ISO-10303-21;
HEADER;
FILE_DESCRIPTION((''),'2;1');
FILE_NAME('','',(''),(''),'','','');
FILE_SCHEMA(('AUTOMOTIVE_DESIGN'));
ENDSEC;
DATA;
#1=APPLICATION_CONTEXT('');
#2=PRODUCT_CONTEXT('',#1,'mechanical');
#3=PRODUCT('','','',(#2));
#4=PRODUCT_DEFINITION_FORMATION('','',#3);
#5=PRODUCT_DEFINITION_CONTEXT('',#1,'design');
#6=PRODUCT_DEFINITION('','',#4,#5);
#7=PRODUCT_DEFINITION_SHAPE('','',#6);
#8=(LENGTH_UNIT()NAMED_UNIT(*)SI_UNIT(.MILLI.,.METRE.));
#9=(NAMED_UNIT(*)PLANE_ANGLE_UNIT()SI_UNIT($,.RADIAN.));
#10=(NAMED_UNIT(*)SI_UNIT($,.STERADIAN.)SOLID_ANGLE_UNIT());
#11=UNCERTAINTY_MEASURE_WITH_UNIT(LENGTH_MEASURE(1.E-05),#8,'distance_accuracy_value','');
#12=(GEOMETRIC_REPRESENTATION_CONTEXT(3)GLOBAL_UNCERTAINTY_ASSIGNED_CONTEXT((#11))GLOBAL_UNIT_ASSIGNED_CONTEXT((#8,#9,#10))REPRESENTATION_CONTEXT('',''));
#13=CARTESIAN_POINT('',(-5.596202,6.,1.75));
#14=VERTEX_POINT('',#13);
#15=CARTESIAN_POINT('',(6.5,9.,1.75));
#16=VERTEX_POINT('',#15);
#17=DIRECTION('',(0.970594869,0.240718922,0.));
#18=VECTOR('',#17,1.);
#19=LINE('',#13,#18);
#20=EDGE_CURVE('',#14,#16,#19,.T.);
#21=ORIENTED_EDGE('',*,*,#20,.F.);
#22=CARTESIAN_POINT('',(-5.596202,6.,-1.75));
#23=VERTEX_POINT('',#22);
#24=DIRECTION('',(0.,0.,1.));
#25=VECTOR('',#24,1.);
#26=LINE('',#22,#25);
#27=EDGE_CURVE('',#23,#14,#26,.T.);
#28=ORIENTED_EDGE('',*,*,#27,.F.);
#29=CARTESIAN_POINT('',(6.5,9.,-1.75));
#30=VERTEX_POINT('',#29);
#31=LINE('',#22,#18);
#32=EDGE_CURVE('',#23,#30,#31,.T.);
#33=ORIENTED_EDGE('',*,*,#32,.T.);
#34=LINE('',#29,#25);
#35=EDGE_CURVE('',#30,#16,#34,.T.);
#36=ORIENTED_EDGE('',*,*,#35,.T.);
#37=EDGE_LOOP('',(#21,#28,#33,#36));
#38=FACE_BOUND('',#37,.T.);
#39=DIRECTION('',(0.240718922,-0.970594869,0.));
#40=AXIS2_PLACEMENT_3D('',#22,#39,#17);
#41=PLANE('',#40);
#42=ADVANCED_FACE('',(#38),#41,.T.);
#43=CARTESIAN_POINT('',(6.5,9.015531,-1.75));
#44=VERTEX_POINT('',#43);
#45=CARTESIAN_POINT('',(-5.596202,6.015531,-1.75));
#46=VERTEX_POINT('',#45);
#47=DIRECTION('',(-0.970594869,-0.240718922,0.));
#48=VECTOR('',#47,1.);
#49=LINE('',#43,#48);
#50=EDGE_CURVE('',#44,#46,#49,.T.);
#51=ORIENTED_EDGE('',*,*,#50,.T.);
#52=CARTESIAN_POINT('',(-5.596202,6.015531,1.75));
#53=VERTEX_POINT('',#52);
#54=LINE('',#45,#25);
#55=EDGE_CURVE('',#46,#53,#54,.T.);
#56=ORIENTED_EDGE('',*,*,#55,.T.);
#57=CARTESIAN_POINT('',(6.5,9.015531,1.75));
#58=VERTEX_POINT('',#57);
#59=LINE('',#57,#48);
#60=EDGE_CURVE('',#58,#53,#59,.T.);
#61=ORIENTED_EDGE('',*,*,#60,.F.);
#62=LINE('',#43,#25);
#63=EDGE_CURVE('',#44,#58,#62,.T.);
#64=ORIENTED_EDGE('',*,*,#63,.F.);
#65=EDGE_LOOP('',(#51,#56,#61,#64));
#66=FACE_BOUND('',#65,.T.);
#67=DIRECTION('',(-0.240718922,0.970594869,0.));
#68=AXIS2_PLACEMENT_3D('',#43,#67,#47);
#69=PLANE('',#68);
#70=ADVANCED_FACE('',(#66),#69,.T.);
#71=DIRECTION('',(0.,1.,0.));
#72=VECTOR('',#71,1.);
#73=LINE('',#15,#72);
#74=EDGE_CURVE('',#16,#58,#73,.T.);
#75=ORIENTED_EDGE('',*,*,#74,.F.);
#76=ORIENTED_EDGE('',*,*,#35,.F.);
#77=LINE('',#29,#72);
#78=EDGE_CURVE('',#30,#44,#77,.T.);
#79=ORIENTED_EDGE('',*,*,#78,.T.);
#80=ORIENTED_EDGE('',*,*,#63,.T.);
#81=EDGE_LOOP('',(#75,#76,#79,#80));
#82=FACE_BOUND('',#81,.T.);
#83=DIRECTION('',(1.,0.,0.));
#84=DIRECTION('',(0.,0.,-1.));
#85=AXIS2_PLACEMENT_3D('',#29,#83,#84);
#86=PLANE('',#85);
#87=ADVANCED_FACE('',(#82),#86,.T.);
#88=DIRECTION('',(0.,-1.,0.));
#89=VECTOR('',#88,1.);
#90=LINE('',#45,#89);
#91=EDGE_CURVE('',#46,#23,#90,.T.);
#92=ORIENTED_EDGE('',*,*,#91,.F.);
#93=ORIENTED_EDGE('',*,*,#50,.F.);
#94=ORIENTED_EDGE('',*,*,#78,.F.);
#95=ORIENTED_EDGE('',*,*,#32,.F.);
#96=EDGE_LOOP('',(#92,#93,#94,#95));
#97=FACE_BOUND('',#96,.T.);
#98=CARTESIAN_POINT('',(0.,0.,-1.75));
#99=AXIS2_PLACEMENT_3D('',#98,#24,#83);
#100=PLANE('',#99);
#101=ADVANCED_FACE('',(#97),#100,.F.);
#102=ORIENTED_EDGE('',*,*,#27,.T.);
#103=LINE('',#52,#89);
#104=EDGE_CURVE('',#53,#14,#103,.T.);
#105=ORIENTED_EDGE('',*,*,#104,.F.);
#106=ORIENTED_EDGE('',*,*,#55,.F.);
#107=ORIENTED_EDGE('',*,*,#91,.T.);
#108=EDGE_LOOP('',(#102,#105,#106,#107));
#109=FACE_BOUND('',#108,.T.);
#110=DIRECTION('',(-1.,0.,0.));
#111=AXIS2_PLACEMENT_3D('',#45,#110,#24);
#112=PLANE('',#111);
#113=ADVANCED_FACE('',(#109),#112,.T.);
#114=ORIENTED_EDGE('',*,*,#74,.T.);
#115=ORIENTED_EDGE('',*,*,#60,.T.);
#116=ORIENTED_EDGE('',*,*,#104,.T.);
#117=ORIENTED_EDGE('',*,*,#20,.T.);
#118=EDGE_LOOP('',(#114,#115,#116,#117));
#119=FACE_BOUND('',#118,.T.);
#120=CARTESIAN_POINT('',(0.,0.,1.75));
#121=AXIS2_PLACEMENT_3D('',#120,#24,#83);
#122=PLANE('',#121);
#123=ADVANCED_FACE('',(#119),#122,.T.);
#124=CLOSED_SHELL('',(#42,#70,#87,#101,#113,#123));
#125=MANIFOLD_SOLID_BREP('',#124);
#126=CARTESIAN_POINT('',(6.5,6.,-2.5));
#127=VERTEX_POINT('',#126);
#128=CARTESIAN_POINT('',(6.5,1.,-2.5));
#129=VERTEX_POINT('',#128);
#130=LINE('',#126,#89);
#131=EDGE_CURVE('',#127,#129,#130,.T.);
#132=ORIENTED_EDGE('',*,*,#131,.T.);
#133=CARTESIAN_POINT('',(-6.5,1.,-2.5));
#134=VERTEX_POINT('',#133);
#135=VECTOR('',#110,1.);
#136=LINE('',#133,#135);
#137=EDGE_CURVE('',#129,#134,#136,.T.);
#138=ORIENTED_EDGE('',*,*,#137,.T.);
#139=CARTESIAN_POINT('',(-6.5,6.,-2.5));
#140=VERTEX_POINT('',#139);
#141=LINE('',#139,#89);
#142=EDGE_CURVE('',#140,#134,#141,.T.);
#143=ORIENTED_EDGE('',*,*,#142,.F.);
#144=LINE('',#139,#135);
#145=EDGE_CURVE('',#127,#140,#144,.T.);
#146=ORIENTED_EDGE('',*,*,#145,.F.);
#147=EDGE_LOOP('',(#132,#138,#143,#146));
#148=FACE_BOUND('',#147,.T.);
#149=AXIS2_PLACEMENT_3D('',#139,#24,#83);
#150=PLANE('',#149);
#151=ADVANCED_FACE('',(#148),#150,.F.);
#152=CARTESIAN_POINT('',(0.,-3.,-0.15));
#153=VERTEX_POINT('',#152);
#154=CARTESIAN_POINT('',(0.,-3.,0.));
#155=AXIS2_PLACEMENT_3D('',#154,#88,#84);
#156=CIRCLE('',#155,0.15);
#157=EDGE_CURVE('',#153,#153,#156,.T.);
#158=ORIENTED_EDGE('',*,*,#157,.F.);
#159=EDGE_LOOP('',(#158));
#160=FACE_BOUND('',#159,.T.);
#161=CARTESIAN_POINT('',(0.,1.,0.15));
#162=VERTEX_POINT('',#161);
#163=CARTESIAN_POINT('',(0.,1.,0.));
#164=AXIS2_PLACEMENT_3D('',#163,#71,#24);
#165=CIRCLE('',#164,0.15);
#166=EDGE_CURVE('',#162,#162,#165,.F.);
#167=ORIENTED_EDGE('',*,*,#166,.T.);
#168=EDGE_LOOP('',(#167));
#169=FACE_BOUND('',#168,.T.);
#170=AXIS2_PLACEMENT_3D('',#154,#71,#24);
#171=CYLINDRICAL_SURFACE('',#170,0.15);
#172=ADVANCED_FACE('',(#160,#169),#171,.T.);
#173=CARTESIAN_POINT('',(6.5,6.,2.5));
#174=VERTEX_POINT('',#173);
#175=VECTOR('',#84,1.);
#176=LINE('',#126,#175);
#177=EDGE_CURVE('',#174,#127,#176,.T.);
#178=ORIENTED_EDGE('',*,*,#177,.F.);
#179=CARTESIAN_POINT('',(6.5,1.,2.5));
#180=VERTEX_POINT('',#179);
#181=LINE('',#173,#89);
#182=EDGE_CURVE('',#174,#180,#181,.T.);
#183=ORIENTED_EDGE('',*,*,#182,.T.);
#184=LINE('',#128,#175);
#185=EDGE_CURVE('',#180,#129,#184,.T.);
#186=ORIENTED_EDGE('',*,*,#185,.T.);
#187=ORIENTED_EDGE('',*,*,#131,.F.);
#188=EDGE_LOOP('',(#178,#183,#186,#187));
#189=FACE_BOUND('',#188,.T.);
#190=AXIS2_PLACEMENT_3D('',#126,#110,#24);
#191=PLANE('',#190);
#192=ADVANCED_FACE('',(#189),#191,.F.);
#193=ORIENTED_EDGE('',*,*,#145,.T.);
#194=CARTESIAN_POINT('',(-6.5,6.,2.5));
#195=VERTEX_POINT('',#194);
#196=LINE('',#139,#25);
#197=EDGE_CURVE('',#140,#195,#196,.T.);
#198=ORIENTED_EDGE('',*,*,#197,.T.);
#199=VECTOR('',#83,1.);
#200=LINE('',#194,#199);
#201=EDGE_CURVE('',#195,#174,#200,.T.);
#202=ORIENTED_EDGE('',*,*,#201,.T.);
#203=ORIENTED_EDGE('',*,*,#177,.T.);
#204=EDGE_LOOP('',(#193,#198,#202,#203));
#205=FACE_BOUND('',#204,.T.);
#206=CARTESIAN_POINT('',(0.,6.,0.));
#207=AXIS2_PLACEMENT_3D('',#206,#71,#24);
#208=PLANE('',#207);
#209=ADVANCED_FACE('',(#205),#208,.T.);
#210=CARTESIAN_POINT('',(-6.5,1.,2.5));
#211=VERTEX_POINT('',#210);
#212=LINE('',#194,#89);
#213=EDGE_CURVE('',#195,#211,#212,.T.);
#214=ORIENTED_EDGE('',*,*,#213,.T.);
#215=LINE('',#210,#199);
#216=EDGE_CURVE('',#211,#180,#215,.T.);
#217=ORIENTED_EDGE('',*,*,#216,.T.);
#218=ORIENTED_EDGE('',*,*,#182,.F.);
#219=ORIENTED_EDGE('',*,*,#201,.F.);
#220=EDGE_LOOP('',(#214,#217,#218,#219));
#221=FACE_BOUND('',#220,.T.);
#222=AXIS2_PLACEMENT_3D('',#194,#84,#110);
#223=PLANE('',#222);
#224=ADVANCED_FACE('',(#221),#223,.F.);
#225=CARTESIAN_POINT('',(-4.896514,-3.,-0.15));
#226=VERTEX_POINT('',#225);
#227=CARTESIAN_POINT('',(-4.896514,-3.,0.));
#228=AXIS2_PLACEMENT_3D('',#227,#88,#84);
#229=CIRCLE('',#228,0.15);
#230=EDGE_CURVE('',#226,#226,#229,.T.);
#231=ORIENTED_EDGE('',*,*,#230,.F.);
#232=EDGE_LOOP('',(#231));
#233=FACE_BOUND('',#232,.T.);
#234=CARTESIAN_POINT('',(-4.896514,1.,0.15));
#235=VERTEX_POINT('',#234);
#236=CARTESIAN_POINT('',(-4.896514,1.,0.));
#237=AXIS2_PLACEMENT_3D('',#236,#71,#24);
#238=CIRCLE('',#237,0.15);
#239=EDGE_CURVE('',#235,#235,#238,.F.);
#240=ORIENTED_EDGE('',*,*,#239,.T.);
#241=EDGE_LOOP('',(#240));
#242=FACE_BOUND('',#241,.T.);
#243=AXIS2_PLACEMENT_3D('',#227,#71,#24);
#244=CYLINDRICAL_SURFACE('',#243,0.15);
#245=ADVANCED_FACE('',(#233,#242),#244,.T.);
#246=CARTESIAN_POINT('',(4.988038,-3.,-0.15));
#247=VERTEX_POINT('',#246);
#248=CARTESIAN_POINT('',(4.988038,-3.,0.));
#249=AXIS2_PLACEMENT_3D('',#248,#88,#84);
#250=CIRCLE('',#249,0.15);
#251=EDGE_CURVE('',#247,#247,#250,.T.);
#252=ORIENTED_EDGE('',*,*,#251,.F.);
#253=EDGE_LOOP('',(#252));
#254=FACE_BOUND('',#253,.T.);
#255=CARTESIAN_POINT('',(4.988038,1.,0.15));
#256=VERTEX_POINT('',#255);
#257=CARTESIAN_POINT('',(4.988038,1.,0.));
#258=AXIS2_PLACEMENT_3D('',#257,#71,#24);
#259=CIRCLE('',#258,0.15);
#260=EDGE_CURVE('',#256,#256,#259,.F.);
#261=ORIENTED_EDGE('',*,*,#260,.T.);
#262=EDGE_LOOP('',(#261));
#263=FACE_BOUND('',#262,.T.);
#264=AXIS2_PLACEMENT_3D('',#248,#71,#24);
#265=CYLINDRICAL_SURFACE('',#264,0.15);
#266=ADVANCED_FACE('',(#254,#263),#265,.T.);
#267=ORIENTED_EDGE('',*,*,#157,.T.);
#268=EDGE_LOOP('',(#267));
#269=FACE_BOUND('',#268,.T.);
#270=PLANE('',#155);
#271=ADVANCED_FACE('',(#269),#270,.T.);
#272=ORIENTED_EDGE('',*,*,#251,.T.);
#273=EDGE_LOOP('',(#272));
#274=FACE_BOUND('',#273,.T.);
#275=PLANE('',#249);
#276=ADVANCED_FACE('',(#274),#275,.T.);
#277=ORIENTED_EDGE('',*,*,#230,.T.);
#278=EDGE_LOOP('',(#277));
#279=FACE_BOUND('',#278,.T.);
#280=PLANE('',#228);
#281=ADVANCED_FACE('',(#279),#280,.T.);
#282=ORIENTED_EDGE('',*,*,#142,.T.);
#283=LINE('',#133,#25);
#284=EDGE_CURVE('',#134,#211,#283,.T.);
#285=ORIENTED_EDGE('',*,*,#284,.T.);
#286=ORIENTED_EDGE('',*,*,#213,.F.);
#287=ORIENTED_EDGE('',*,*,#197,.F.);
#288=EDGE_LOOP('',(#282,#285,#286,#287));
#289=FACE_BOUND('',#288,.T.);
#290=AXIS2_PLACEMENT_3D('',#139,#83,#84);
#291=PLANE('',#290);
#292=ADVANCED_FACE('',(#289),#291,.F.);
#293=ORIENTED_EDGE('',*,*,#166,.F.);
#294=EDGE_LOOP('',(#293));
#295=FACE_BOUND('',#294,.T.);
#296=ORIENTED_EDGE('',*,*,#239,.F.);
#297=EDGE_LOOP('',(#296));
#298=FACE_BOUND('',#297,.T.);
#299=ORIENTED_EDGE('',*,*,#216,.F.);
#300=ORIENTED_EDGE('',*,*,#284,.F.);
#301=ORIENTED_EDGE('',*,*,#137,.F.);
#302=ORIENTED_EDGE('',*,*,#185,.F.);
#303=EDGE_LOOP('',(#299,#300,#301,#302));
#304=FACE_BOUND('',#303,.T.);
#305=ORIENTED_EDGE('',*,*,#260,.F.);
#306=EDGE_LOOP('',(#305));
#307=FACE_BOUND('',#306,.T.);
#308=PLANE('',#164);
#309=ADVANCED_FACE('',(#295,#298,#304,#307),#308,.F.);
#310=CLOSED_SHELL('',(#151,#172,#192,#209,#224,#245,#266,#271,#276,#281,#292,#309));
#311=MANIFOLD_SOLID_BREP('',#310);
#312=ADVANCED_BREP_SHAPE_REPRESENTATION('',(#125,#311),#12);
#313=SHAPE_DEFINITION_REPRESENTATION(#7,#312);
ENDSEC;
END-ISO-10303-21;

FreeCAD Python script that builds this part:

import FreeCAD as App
import Part
import Sketcher
Q = App.Units.Quantity


def add_polygon(sketch, points):
    """Adds a closed chain of lines whose ends are joined by coincident constraints."""
    first, n = sketch.GeometryCount, len(points)
    for a, b in zip(points, points[1:] + points[:1]):
        sketch.addGeometry(Part.LineSegment(App.Vector(*a, 0), App.Vector(*b, 0)), False)
    for i in range(n):
        sketch.addConstraint(Sketcher.Constraint("Coincident", first + i, 2, first + (i + 1) % n, 1))

doc = App.newDocument("Part")
params = doc.addObject("Spreadsheet::Sheet", "Params")
for row, (alias, value) in enumerate([
    ("sketch1_width", "13 mm"),
    ("sketch1_height", "5 mm"),
    ("pad1_length", "5 mm"),
    ("sketch2_diameter", "0.3 mm"),
    ("pad2_length", "4 mm"),
    ("pad3_length", "3.5 mm"),
], start=1):
    params.set(f"A{row}", alias)
    params.set(f"B{row}", "=" + value)
    params.setAlias(f"B{row}", alias)

body = doc.addObject("PartDesign::Body", "Body")

# Sketch on XZ plane
sketch1 = body.newObject("Sketcher::SketchObject", "Sketch")
sketch1.AttachmentSupport = (doc.getObject("XZ_Plane"), [""])
sketch1.MapMode = "FlatFace"
sketch1.AttachmentOffset = App.Placement(App.Vector(0, 0, -1), App.Rotation())
add_polygon(sketch1, [(-6, -2), (-6, 2), (6, 2), (6, -2)])  # lines 0-3
sketch1.addConstraint(Sketcher.Constraint("Vertical", 0))
sketch1.addConstraint(Sketcher.Constraint("Horizontal", 1))
sketch1.addConstraint(Sketcher.Constraint("Vertical", 2))
sketch1.addConstraint(Sketcher.Constraint("Horizontal", 3))
sketch1.addConstraint(Sketcher.Constraint("Symmetric", 0, 2, 2, 2, -1, 1))
sketch1.addConstraint(Sketcher.Constraint("DistanceX", 1, 1, 1, 2, Q("13 mm")))
sketch1.addConstraint(Sketcher.Constraint("DistanceY", 0, 1, 0, 2, Q("5 mm")))
sketch1.setExpression("Constraints[9]", "Params.sketch1_width")
sketch1.setExpression("Constraints[10]", "Params.sketch1_height")
pad1 = body.newObject("PartDesign::Pad", "Pad")
pad1.Profile = sketch1
pad1.setExpression("Length", "Params.pad1_length")
pad1.Reversed = True

# Sketch on XZ plane
sketch2 = body.newObject("Sketcher::SketchObject", "Sketch001")
sketch2.AttachmentSupport = (doc.getObject("XZ_Plane"), [""])
sketch2.MapMode = "FlatFace"
sketch2.AttachmentOffset = App.Placement(App.Vector(0, 0, -1), App.Rotation())
sketch2.addGeometry(Part.Circle(App.Vector(0, 0, 0), App.Vector(0, 0, 1), 0.15), False)
sketch2.addGeometry(Part.Circle(App.Vector(-4.9, 0, 0), App.Vector(0, 0, 1), 0.15), False)
sketch2.addGeometry(Part.Circle(App.Vector(4.99, 0, 0), App.Vector(0, 0, 1), 0.15), False)
sketch2.addConstraint(Sketcher.Constraint("Coincident", 0, 3, -1, 1))
sketch2.addConstraint(Sketcher.Constraint("Equal", 0, 1))
sketch2.addConstraint(Sketcher.Constraint("Equal", 1, 2))
sketch2.addConstraint(Sketcher.Constraint("PointOnObject", 1, 3, -1))
sketch2.addConstraint(Sketcher.Constraint("PointOnObject", 2, 3, -1))
sketch2.addConstraint(Sketcher.Constraint("Diameter", 0, Q("0.3 mm")))
sketch2.addConstraint(Sketcher.Constraint("DistanceX", 1, 3, 2, 3, Q("9.884552 mm")))
sketch2.addConstraint(Sketcher.Constraint("DistanceX", 1, 3, -1, 1, Q("4.896514 mm")))
sketch2.setExpression("Constraints[5]", "Params.sketch2_diameter")
pad2 = body.newObject("PartDesign::Pad", "Pad001")
pad2.Profile = sketch2
pad2.setExpression("Length", "Params.pad2_length")
body2 = doc.addObject("PartDesign::Body", "Body001")

# Sketch on XY plane
sketch3 = body2.newObject("Sketcher::SketchObject", "Sketch002")
sketch3.AttachmentSupport = (doc.getObject("XY_Plane001"), [""])
sketch3.MapMode = "FlatFace"
sketch3.AttachmentOffset = App.Placement(App.Vector(0, 0, 1.75), App.Rotation())
add_polygon(sketch3, [(-5.596, 6), (6.5, 9), (6.5, 9.016), (-5.596, 6.016)])  # lines 0-3
sketch3.addConstraint(Sketcher.Constraint("Vertical", 1))
sketch3.addConstraint(Sketcher.Constraint("Vertical", 3))
sketch3.addConstraint(Sketcher.Constraint("Parallel", 0, 2))
sketch3.addConstraint(Sketcher.Constraint("DistanceY", -1, 1, 0, 2, Q("9 mm")))
sketch3.addConstraint(Sketcher.Constraint("DistanceY", -1, 1, 3, 2, Q("6 mm")))
sketch3.addConstraint(Sketcher.Constraint("DistanceX", -1, 1, 0, 2, Q("6.5 mm")))
sketch3.addConstraint(Sketcher.Constraint("DistanceY", 1, 1, 1, 2, Q("0.015531 mm")))
sketch3.addConstraint(Sketcher.Constraint("DistanceX", 2, 2, -1, 1, Q("5.596202 mm")))
pad3 = body2.newObject("PartDesign::Pad", "Pad002")
pad3.Profile = sketch3
pad3.setExpression("Length", "Params.pad3_length")
pad3.Reversed = True

doc.recompute()
